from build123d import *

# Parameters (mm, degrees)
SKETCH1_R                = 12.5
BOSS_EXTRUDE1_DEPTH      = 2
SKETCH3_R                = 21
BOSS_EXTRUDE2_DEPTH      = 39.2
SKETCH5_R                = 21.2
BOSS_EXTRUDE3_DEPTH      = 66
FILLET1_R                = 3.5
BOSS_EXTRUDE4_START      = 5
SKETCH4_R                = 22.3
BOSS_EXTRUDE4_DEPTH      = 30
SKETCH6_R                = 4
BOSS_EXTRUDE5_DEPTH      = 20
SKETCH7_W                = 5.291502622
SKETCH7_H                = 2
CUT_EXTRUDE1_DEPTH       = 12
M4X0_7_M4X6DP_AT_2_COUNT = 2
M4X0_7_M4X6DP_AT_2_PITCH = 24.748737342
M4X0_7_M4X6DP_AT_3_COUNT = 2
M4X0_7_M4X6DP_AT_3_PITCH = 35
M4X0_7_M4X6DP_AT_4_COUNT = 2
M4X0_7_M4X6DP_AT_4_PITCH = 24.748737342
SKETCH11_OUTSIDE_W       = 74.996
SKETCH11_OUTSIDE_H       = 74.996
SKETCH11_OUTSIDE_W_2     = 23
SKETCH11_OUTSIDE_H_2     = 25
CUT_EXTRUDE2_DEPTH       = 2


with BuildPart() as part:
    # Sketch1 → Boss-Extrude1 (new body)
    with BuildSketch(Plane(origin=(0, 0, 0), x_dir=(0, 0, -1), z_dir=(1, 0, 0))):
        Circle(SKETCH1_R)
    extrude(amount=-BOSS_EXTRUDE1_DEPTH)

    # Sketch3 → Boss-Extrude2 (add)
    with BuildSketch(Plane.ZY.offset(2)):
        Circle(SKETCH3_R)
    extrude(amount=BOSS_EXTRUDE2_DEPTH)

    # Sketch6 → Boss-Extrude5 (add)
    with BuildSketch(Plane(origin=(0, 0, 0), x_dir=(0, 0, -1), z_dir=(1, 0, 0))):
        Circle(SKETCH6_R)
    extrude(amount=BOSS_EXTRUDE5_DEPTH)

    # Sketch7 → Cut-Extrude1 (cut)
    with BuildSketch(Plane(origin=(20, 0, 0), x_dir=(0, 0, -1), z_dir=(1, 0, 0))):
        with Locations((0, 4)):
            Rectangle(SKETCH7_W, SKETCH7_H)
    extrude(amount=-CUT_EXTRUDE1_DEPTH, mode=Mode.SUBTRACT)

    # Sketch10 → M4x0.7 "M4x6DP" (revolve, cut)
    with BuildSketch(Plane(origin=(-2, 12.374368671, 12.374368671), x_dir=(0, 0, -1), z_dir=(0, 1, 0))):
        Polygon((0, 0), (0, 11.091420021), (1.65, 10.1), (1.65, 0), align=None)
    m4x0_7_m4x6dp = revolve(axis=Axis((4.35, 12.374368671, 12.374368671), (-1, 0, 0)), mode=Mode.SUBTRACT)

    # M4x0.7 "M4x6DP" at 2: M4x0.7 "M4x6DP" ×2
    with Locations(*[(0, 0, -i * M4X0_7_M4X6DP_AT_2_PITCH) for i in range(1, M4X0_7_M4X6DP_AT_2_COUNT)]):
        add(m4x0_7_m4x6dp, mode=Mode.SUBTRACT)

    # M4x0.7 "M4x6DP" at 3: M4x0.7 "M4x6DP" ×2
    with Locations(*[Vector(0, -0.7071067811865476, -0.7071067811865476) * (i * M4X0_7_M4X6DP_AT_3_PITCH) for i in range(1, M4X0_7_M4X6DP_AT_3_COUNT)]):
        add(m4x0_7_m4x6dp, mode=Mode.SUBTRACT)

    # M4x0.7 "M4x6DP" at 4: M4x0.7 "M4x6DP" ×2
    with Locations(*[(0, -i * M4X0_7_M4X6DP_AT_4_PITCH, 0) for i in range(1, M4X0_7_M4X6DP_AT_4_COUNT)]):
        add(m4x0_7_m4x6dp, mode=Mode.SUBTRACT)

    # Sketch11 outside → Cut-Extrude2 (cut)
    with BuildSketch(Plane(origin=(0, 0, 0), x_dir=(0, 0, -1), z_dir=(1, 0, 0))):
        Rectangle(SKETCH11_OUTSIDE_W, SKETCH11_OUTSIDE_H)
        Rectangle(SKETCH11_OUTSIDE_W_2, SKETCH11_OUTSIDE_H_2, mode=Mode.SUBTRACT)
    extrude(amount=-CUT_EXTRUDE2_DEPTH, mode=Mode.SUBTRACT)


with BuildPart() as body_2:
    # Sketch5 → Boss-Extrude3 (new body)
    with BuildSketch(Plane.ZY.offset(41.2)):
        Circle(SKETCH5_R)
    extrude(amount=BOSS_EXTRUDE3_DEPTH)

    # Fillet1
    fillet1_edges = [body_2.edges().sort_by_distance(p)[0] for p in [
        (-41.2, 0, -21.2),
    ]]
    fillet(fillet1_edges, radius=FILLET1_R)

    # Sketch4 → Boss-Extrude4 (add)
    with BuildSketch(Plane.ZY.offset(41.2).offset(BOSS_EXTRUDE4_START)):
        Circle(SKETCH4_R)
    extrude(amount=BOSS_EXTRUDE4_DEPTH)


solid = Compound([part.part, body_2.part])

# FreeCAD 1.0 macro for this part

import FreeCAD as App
import Part
import Sketcher
from FreeCAD import Vector
Q = App.Units.Quantity


def edges_at(feature, points):
    """Names of the edges that pass closest to the given points."""
    edges = feature.Shape.Edges
    near = lambda p: min(range(len(edges)), key=lambda i: edges[i].distToShape(Part.Vertex(*p))[0])
    return sorted({f"Edge{near(p) + 1}" for p in points})


def add_polygon(sketch, points):
    """Adds a closed chain of lines whose ends are joined by coincident constraints."""
    first, n = sketch.GeometryCount, len(points)
    for a, b in zip(points, points[1:] + points[:1]):
        sketch.addGeometry(Part.LineSegment(App.Vector(*a, 0), App.Vector(*b, 0)), False)
    for i in range(n):
        sketch.addConstraint(Sketcher.Constraint("Coincident", first + i, 2, first + (i + 1) % n, 1))

doc = App.newDocument("Part")
body = doc.addObject("PartDesign::Body", "Body")

# Sketch on YZ plane
sketch1 = body.newObject("Sketcher::SketchObject", "Sketch")
sketch1.AttachmentSupport = (doc.getObject("YZ_Plane"), [""])
sketch1.MapMode = "FlatFace"
sketch1.addGeometry(Part.Circle(Vector(0, 0, 0), Vector(0, 0, 1), 12), False)
sketch1.addConstraint([
    Sketcher.Constraint("Coincident", 0, 3, -1, 1),
    Sketcher.Constraint("Diameter", 0, Q("25 mm")),
])
pad1 = body.newObject("PartDesign::Pad", "Pad")
pad1.Profile = sketch1
pad1.Length = 2
pad1.Reversed = True

# Sketch on YZ plane
sketch2 = body.newObject("Sketcher::SketchObject", "Sketch001")
sketch2.AttachmentSupport = (doc.getObject("YZ_Plane"), [""])
sketch2.MapMode = "FlatFace"
sketch2.AttachmentOffset = App.Placement(Vector(0, 0, -2), App.Rotation())
sketch2.addGeometry(Part.Circle(Vector(0, 0, 0), Vector(0, 0, 1), 21), False)
sketch2.addConstraint([
    Sketcher.Constraint("Coincident", 0, 3, -1, 1),
    Sketcher.Constraint("Diameter", 0, Q("42 mm")),
])
pad2 = body.newObject("PartDesign::Pad", "Pad001")
pad2.Profile = sketch2
pad2.Length = 39.2
pad2.Reversed = True

# Sketch on YZ plane
sketch3 = body.newObject("Sketcher::SketchObject", "Sketch002")
sketch3.AttachmentSupport = (doc.getObject("YZ_Plane"), [""])
sketch3.MapMode = "FlatFace"
sketch3.addGeometry(Part.Circle(Vector(0, 0, 0), Vector(0, 0, 1), 4), False)
sketch3.addConstraint([
    Sketcher.Constraint("Coincident", 0, 3, -1, 1),
    Sketcher.Constraint("Diameter", 0, Q("8 mm")),
])
pad3 = body.newObject("PartDesign::Pad", "Pad002")
pad3.Profile = sketch3
pad3.Length = 20

# Sketch on YZ plane
sketch4 = body.newObject("Sketcher::SketchObject", "Sketch003")
sketch4.AttachmentSupport = (doc.getObject("YZ_Plane"), [""])
sketch4.MapMode = "FlatFace"
sketch4.AttachmentOffset = App.Placement(Vector(0, 0, 20), App.Rotation())
add_polygon(sketch4, [(5, 2.6), (3, 2.6), (3, -2.6), (5, -2.6)])  # lines 0-3
sketch4.addConstraint([
    Sketcher.Constraint("Horizontal", 0),
    Sketcher.Constraint("Vertical", 1),
    Sketcher.Constraint("Horizontal", 2),
    Sketcher.Constraint("Vertical", 3),
    Sketcher.Constraint("DistanceX", 0, 2, 0, 1, Q("2 mm")),
    Sketcher.Constraint("DistanceX", -1, 1, 0, 2, Q("3 mm")),
    Sketcher.Constraint("DistanceY", 1, 2, 1, 1, Q("5.291503 mm")),
    Sketcher.Constraint("DistanceY", -1, 1, 0, 2, Q("2.645751 mm")),
])
pocket1 = body.newObject("PartDesign::Pocket", "Pocket")
pocket1.Profile = sketch4
pocket1.Length = 12

# Sketch on XZ plane
sketch5 = body.newObject("Sketcher::SketchObject", "Sketch004")
sketch5.AttachmentSupport = (doc.getObject("XZ_Plane"), [""])
sketch5.MapMode = "FlatFace"
sketch5.AttachmentOffset = App.Placement(Vector(0, 0, -12.374369), App.Rotation())
add_polygon(sketch5, [(-13.1, 12.4), (-2, 12.4), (-2, 10.7), (-12.1, 10.7)])  # lines 0-3
sketch5.addGeometry(Part.LineSegment(Vector(-2, 12.4, 0), Vector(-13.1, 12.4, 0)), True)  # axis
sketch5.addConstraint([
    Sketcher.Constraint("Horizontal", 0),
    Sketcher.Constraint("Vertical", 1),
    Sketcher.Constraint("Horizontal", 2),
    Sketcher.Constraint("Horizontal", 4),
    Sketcher.Constraint("Coincident", 4, 1, 0, 2),
    Sketcher.Constraint("Equal", 0, 4),
    Sketcher.Constraint("Angle", 3, Q("121 deg")),
    Sketcher.Constraint("DistanceX", 2, 2, 2, 1, Q("10.1 mm")),
    Sketcher.Constraint("DistanceX", 0, 2, -1, 1, Q("2 mm")),
    Sketcher.Constraint("DistanceY", 1, 2, 1, 1, Q("1.65 mm")),
    Sketcher.Constraint("DistanceY", -1, 1, 0, 2, Q("12.374369 mm")),
])
groove = body.newObject("PartDesign::Groove", "Groove")
groove.Profile = sketch5
groove.ReferenceAxis = (sketch5, ["Axis0"])
groove.Angle = 360
doc.recompute()

linearpattern = body.newObject("PartDesign::LinearPattern", "LinearPattern")
linearpattern.Originals = [groove]
linearpattern.Direction = (doc.getObject("Z_Axis"), [""])
linearpattern.Mode = "offset"
linearpattern.Offset = 24.748737
linearpattern.Occurrences = 2
linearpattern.Reversed = True
body.Tip = linearpattern
doc.recompute()

datumline = body.newObject("PartDesign::Line", "DatumLine")
datumline.Placement = App.Placement(Vector(0, 0, 0), App.Rotation(Vector(0, 0, 1), Vector(0, -0.707106781, -0.707106781)))
linearpattern2 = body.newObject("PartDesign::LinearPattern", "LinearPattern001")
linearpattern2.Originals = [groove]
linearpattern2.Direction = (datumline, [""])
linearpattern2.Mode = "offset"
linearpattern2.Offset = 35
linearpattern2.Occurrences = 2
body.Tip = linearpattern2
doc.recompute()

linearpattern3 = body.newObject("PartDesign::LinearPattern", "LinearPattern002")
linearpattern3.Originals = [groove]
linearpattern3.Direction = (doc.getObject("Y_Axis"), [""])
linearpattern3.Mode = "offset"
linearpattern3.Offset = 24.748737
linearpattern3.Occurrences = 2
linearpattern3.Reversed = True
body.Tip = linearpattern3

# Sketch on YZ plane
sketch6 = body.newObject("Sketcher::SketchObject", "Sketch005")
sketch6.AttachmentSupport = (doc.getObject("YZ_Plane"), [""])
sketch6.MapMode = "FlatFace"
add_polygon(sketch6, [(37, 37), (-37, 37), (-37, -37), (37, -37)])  # lines 0-3
add_polygon(sketch6, [(-12, -12), (-12, 12), (12, 12), (12, -12)])  # lines 4-7
sketch6.addConstraint([
    Sketcher.Constraint("Horizontal", 0),
    Sketcher.Constraint("Vertical", 1),
    Sketcher.Constraint("Horizontal", 2),
    Sketcher.Constraint("Vertical", 3),
    Sketcher.Constraint("Vertical", 4),
    Sketcher.Constraint("Horizontal", 5),
    Sketcher.Constraint("Vertical", 6),
    Sketcher.Constraint("Horizontal", 7),
    Sketcher.Constraint("Symmetric", 0, 2, 2, 2, -1, 1),
    Sketcher.Constraint("Symmetric", 4, 2, 6, 2, -1, 1),
    Sketcher.Constraint("Equal", 2, 1),
    Sketcher.Constraint("DistanceX", 5, 1, 5, 2, Q("25 mm")),
    Sketcher.Constraint("DistanceY", 4, 1, 4, 2, Q("23 mm")),
    Sketcher.Constraint("DistanceX", 0, 2, 0, 1, Q("74.996 mm")),
])
pocket2 = body.newObject("PartDesign::Pocket", "Pocket001")
pocket2.Profile = sketch6
pocket2.Length = 2
body2 = doc.addObject("PartDesign::Body", "Body001")

# Sketch on YZ plane
sketch7 = body2.newObject("Sketcher::SketchObject", "Sketch006")
sketch7.AttachmentSupport = (doc.getObject("YZ_Plane001"), [""])
sketch7.MapMode = "FlatFace"
sketch7.AttachmentOffset = App.Placement(Vector(0, 0, -41.2), App.Rotation())
sketch7.addGeometry(Part.Circle(Vector(0, 0, 0), Vector(0, 0, 1), 21), False)
sketch7.addConstraint([
    Sketcher.Constraint("Coincident", 0, 3, -1, 1),
    Sketcher.Constraint("Diameter", 0, Q("42.4 mm")),
])
pad4 = body2.newObject("PartDesign::Pad", "Pad003")
pad4.Profile = sketch7
pad4.Length = 66
pad4.Reversed = True
doc.recompute()

fillet = body2.newObject("PartDesign::Fillet", "Fillet")
fillet.Base = (pad4, edges_at(pad4, [(-41.2, 0, -21.2)]))
fillet.Radius = 3.5

# Sketch on YZ plane
sketch8 = body2.newObject("Sketcher::SketchObject", "Sketch007")
sketch8.AttachmentSupport = (doc.getObject("YZ_Plane001"), [""])
sketch8.MapMode = "FlatFace"
sketch8.AttachmentOffset = App.Placement(Vector(0, 0, -46.2), App.Rotation())
sketch8.addGeometry(Part.Circle(Vector(0, 0, 0), Vector(0, 0, 1), 22), False)
sketch8.addConstraint([
    Sketcher.Constraint("Coincident", 0, 3, -1, 1),
    Sketcher.Constraint("Diameter", 0, Q("44.6 mm")),
])
pad5 = body2.newObject("PartDesign::Pad", "Pad004")
pad5.Profile = sketch8
pad5.Length = 30
pad5.Reversed = True

doc.recompute()
